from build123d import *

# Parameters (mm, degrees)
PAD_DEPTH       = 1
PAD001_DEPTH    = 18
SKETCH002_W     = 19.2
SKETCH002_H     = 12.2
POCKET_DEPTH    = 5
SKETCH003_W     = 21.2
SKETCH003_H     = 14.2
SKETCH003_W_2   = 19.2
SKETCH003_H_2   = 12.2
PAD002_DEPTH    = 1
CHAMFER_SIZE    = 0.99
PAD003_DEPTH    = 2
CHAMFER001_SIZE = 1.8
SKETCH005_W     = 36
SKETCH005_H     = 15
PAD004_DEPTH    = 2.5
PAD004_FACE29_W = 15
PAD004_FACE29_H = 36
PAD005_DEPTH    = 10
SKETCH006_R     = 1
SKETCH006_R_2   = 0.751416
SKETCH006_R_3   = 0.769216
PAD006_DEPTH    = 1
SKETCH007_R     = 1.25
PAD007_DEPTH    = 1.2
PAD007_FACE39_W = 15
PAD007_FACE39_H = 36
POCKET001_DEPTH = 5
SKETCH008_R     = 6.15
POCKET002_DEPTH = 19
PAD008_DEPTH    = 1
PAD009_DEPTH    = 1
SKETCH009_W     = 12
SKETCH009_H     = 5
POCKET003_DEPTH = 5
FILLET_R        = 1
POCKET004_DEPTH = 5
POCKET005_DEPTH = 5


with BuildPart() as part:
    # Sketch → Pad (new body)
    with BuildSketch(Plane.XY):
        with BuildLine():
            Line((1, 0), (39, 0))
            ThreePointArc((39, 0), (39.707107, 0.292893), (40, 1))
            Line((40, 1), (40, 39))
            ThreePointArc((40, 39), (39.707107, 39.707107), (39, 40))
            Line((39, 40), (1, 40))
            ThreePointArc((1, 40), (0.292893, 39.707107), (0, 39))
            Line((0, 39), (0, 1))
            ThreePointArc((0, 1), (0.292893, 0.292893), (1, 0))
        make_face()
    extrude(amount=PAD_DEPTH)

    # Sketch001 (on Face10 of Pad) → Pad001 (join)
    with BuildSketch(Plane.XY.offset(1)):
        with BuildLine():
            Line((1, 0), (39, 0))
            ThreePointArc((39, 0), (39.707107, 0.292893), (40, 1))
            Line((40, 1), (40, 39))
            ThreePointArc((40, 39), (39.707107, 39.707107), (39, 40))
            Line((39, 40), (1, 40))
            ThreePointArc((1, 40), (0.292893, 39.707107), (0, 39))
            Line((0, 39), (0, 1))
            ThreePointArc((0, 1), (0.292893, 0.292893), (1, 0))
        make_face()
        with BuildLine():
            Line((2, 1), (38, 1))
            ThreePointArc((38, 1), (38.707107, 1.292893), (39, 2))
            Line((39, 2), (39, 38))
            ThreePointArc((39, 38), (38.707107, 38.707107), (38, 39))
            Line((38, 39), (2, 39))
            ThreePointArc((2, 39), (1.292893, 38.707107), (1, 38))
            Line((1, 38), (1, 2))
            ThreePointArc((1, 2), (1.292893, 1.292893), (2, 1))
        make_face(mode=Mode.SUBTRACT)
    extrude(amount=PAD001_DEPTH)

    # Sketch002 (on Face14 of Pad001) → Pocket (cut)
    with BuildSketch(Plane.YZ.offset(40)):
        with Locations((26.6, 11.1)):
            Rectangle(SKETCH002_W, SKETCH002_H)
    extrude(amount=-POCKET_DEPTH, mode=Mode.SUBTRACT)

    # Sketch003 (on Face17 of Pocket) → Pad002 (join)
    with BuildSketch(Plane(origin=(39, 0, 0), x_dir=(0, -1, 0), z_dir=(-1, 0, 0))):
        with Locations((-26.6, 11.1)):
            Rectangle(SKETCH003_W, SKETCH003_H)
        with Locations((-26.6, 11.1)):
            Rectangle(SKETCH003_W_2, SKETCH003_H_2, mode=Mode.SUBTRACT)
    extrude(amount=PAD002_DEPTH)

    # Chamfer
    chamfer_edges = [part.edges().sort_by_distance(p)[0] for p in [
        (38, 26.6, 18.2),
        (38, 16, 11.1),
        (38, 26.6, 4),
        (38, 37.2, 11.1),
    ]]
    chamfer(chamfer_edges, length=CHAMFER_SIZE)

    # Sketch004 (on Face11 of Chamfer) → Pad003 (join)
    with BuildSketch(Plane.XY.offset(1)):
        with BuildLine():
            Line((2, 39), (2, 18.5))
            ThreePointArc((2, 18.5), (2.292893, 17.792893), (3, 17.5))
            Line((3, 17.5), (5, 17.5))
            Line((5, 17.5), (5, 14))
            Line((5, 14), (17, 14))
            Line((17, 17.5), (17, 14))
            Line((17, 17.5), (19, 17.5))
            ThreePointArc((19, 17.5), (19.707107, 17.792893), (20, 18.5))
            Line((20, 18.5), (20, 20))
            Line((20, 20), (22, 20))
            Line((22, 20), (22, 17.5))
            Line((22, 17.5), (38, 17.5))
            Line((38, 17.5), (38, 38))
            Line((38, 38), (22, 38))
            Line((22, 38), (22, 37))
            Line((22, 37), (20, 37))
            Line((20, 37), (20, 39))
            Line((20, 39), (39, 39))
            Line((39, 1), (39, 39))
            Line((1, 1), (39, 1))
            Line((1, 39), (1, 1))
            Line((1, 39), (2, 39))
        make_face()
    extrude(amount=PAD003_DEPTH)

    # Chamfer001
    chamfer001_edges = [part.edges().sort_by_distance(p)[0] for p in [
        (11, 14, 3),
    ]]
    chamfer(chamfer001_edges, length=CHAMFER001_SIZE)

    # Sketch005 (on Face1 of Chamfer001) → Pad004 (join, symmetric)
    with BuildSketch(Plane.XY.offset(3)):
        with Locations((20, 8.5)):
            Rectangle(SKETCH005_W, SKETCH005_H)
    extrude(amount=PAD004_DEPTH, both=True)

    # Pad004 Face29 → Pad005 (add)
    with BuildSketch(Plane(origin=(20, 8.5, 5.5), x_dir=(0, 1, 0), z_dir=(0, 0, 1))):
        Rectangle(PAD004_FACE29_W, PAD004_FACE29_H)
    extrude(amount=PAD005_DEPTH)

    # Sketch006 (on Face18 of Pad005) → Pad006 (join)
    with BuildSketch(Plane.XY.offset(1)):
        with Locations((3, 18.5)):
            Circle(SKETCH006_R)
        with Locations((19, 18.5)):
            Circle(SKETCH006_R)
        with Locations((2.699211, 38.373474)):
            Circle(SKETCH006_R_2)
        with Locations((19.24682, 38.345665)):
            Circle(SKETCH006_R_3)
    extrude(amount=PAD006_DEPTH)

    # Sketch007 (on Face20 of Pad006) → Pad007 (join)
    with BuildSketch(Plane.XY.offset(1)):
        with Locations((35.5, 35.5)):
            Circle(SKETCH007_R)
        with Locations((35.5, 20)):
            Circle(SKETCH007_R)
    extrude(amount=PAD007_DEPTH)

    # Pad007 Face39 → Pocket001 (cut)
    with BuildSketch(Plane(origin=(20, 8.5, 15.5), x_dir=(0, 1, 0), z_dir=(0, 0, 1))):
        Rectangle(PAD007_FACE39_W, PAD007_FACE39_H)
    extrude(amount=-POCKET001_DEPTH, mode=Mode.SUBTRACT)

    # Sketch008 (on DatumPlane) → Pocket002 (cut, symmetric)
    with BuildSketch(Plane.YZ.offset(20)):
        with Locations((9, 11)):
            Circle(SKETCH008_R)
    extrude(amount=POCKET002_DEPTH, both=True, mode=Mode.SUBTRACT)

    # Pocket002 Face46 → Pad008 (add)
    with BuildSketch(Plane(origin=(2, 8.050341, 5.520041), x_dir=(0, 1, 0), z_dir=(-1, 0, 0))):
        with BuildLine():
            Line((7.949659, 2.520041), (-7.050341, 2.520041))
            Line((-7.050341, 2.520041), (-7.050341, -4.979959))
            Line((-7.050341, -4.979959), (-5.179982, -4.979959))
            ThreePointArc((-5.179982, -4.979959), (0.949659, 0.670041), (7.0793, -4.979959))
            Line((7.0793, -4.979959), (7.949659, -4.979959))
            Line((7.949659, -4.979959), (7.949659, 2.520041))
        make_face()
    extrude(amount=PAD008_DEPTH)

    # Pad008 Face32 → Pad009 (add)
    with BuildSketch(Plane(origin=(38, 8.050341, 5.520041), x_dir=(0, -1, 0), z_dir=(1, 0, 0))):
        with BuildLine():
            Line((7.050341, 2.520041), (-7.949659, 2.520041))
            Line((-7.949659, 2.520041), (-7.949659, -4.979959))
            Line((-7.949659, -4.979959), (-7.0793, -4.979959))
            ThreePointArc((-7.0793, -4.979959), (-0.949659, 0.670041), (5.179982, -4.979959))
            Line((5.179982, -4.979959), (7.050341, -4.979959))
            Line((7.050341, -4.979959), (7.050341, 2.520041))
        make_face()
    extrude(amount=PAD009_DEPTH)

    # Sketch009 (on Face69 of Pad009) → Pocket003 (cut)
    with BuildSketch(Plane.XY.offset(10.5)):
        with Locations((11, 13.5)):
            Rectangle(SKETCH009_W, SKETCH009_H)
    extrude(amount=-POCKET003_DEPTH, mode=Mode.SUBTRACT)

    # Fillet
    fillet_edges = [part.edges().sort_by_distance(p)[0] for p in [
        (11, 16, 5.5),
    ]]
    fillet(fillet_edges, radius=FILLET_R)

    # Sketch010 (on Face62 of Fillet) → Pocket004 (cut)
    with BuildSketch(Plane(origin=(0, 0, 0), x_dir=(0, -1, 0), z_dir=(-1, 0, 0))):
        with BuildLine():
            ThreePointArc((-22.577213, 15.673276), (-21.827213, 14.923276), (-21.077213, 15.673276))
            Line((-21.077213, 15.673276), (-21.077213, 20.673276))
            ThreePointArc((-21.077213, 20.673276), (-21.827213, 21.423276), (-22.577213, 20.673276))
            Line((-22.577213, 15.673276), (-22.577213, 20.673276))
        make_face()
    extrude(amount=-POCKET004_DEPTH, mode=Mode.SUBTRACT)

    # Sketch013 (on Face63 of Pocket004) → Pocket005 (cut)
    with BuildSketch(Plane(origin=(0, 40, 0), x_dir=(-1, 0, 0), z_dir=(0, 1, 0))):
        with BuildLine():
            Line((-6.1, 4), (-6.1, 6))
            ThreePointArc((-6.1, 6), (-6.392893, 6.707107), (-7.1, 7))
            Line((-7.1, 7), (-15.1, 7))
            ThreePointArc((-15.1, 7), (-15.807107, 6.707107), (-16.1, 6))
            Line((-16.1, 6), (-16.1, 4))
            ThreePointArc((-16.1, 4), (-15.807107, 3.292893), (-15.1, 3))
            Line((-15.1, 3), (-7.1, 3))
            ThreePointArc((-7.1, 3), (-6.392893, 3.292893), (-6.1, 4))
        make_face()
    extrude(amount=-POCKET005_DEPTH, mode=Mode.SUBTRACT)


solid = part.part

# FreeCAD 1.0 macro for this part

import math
import FreeCAD as App
import Part
import Sketcher
Q = App.Units.Quantity


def edges_at(feature, points):
    """Names of the edges that pass closest to the given points."""
    edges = feature.Shape.Edges
    near = lambda p: min(range(len(edges)), key=lambda i: edges[i].distToShape(Part.Vertex(*p))[0])
    return sorted({f"Edge{near(p) + 1}" for p in points})


def add_polygon(sketch, points):
    """Adds a closed chain of lines whose ends are joined by coincident constraints."""
    first, n = sketch.GeometryCount, len(points)
    for a, b in zip(points, points[1:] + points[:1]):
        sketch.addGeometry(Part.LineSegment(App.Vector(*a, 0), App.Vector(*b, 0)), False)
    for i in range(n):
        sketch.addConstraint(Sketcher.Constraint("Coincident", first + i, 2, first + (i + 1) % n, 1))

doc = App.newDocument("Part")
params = doc.addObject("Spreadsheet::Sheet", "Params")
for row, (alias, value) in enumerate([
    ("sketch1_radius", "0.999999 mm"),
    ("sketch1_width", "38 mm"),
    ("pad1_length", "1 mm"),
    ("sketch2_radius", "0.999999 mm"),
    ("sketch2_width", "38 mm"),
    ("pad2_length", "18 mm"),
    ("sketch3_width", "19.2 mm"),
    ("sketch3_height", "12.2 mm"),
    ("pocket1_length", "5 mm"),
    ("sketch4_width", "21.2 mm"),
    ("sketch4_width2", "19.2 mm"),
    ("sketch4_height", "14.2 mm"),
    ("sketch4_height2", "12.2 mm"),
    ("pad3_length", "1 mm"),
    ("chamfer_size", "0.99 mm"),
    ("sketch5_radius", "0.999999 mm"),
    ("sketch5_width", "1 mm"),
    ("sketch5_width2", "38 mm"),
    ("sketch5_width3", "19 mm"),
    ("sketch5_width4", "16 mm"),
    ("pad4_length", "2 mm"),
    ("chamfer2_size", "1.8 mm"),
    ("sketch6_width", "36 mm"),
    ("sketch6_height", "15 mm"),
    ("pad5_length", "5 mm"),
    ("sketch7_width", "36 mm"),
    ("sketch7_height", "15 mm"),
    ("pad6_length", "10 mm"),
    ("sketch8_diameter", "2 mm"),
    ("pad7_length", "1 mm"),
    ("sketch9_diameter", "2.5 mm"),
    ("pad8_length", "1.2 mm"),
    ("sketch10_width", "36 mm"),
    ("sketch10_height", "15 mm"),
    ("pocket2_length", "5 mm"),
    ("sketch11_diameter", "12.3 mm"),
    ("pocket3_length", "38 mm"),
    ("sketch12_width", "15 mm"),
    ("sketch12_radius", "6.15 mm"),
    ("sketch12_height", "7.5 mm"),
    ("pad9_length", "1 mm"),
    ("sketch13_width", "15 mm"),
    ("sketch13_radius", "6.15 mm"),
    ("sketch13_height", "7.5 mm"),
    ("pad10_length", "1 mm"),
    ("sketch14_width", "12 mm"),
    ("sketch14_height", "5 mm"),
    ("pocket4_length", "5 mm"),
    ("fillet_radius", "1 mm"),
    ("sketch15_height", "5 mm"),
    ("sketch15_radius", "0.75 mm"),
    ("pocket5_length", "5 mm"),
    ("sketch16_radius", "0.999999 mm"),
    ("sketch16_width", "8 mm"),
    ("sketch16_height", "2 mm"),
    ("pocket6_length", "5 mm"),
], start=1):
    params.set(f"A{row}", alias)
    params.set(f"B{row}", "=" + value)
    params.setAlias(f"B{row}", alias)

body = doc.addObject("PartDesign::Body", "Body")

# Sketch on XY plane
sketch1 = body.newObject("Sketcher::SketchObject", "Sketch")
sketch1.AttachmentSupport = (doc.getObject("XY_Plane"), [""])
sketch1.MapMode = "FlatFace"
sketch1.addGeometry(Part.LineSegment(App.Vector(1, 0, 0), App.Vector(39, 0, 0)), False)
sketch1.addGeometry(Part.ArcOfCircle(Part.Circle(App.Vector(39, 1, 0), App.Vector(0, 0, 1), 1), math.radians(-90), math.radians(0)), False)
sketch1.addGeometry(Part.LineSegment(App.Vector(40, 1, 0), App.Vector(40, 39, 0)), False)
sketch1.addGeometry(Part.ArcOfCircle(Part.Circle(App.Vector(39, 39, 0), App.Vector(0, 0, 1), 1), math.radians(0), math.radians(90)), False)
sketch1.addGeometry(Part.LineSegment(App.Vector(39, 40, 0), App.Vector(1, 40, 0)), False)
sketch1.addGeometry(Part.ArcOfCircle(Part.Circle(App.Vector(1, 39, 0), App.Vector(0, 0, 1), 1), math.radians(90), math.radians(180)), False)
sketch1.addGeometry(Part.LineSegment(App.Vector(0, 39, 0), App.Vector(0, 1, 0)), False)
sketch1.addGeometry(Part.ArcOfCircle(Part.Circle(App.Vector(1, 1, 0), App.Vector(0, 0, 1), 1), math.radians(180), math.radians(270)), False)
sketch1.addConstraint(Sketcher.Constraint("Tangent", 0, 2, 1, 1))
sketch1.addConstraint(Sketcher.Constraint("Tangent", 1, 2, 2, 1))
sketch1.addConstraint(Sketcher.Constraint("Tangent", 2, 2, 3, 1))
sketch1.addConstraint(Sketcher.Constraint("Tangent", 3, 2, 4, 1))
sketch1.addConstraint(Sketcher.Constraint("Tangent", 4, 2, 5, 1))
sketch1.addConstraint(Sketcher.Constraint("Tangent", 5, 2, 6, 1))
sketch1.addConstraint(Sketcher.Constraint("Tangent", 6, 2, 7, 1))
sketch1.addConstraint(Sketcher.Constraint("Tangent", 7, 2, 0, 1))
sketch1.addConstraint(Sketcher.Constraint("Horizontal", 0))
sketch1.addConstraint(Sketcher.Constraint("Vertical", 2))
sketch1.addConstraint(Sketcher.Constraint("Horizontal", 4))
sketch1.addConstraint(Sketcher.Constraint("Vertical", 6))
sketch1.addConstraint(Sketcher.Constraint("Equal", 1, 3))
sketch1.addConstraint(Sketcher.Constraint("Equal", 3, 5))
sketch1.addConstraint(Sketcher.Constraint("Equal", 5, 7))
sketch1.addConstraint(Sketcher.Constraint("PointOnObject", 0, 2, -1))
sketch1.addConstraint(Sketcher.Constraint("PointOnObject", 5, 2, -2))
sketch1.addConstraint(Sketcher.Constraint("Equal", 4, 2))
sketch1.addConstraint(Sketcher.Constraint("Radius", 1, Q("0.999999 mm")))
sketch1.addConstraint(Sketcher.Constraint("DistanceX", 0, 1, 0, 2, Q("38 mm")))
sketch1.setExpression("Constraints[18]", "Params.sketch1_radius")
sketch1.setExpression("Constraints[19]", "Params.sketch1_width")
pad1 = body.newObject("PartDesign::Pad", "Pad")
pad1.Profile = sketch1
pad1.setExpression("Length", "Params.pad1_length")

# Sketch on XY plane
sketch2 = body.newObject("Sketcher::SketchObject", "Sketch001")
sketch2.AttachmentSupport = (doc.getObject("XY_Plane"), [""])
sketch2.MapMode = "FlatFace"
sketch2.AttachmentOffset = App.Placement(App.Vector(0, 0, 1), App.Rotation())
sketch2.addGeometry(Part.LineSegment(App.Vector(1, 0, 0), App.Vector(39, 0, 0)), False)
sketch2.addGeometry(Part.ArcOfCircle(Part.Circle(App.Vector(39, 1, 0), App.Vector(0, 0, 1), 1), math.radians(-90), math.radians(0)), False)
sketch2.addGeometry(Part.LineSegment(App.Vector(40, 1, 0), App.Vector(40, 39, 0)), False)
sketch2.addGeometry(Part.ArcOfCircle(Part.Circle(App.Vector(39, 39, 0), App.Vector(0, 0, 1), 1), math.radians(0), math.radians(90)), False)
sketch2.addGeometry(Part.LineSegment(App.Vector(39, 40, 0), App.Vector(1, 40, 0)), False)
sketch2.addGeometry(Part.ArcOfCircle(Part.Circle(App.Vector(1, 39, 0), App.Vector(0, 0, 1), 1), math.radians(90), math.radians(180)), False)
sketch2.addGeometry(Part.LineSegment(App.Vector(0, 39, 0), App.Vector(0, 1, 0)), False)
sketch2.addGeometry(Part.ArcOfCircle(Part.Circle(App.Vector(1, 1, 0), App.Vector(0, 0, 1), 1), math.radians(180), math.radians(270)), False)
sketch2.addGeometry(Part.LineSegment(App.Vector(38, 1, 0), App.Vector(2, 1, 0)), False)
sketch2.addGeometry(Part.ArcOfCircle(Part.Circle(App.Vector(2, 2, 0), App.Vector(0, 0, 1), 1), math.radians(180), math.radians(270)), False)
sketch2.addGeometry(Part.LineSegment(App.Vector(1, 2, 0), App.Vector(1, 38, 0)), False)
sketch2.addGeometry(Part.ArcOfCircle(Part.Circle(App.Vector(2, 38, 0), App.Vector(0, 0, 1), 1), math.radians(90), math.radians(180)), False)
sketch2.addGeometry(Part.LineSegment(App.Vector(2, 39, 0), App.Vector(38, 39, 0)), False)
sketch2.addGeometry(Part.ArcOfCircle(Part.Circle(App.Vector(38, 38, 0), App.Vector(0, 0, 1), 1), math.radians(0), math.radians(90)), False)
sketch2.addGeometry(Part.LineSegment(App.Vector(39, 38, 0), App.Vector(39, 2, 0)), False)
sketch2.addGeometry(Part.ArcOfCircle(Part.Circle(App.Vector(38, 2, 0), App.Vector(0, 0, 1), 1), math.radians(-90), math.radians(0)), False)
sketch2.addConstraint(Sketcher.Constraint("Tangent", 0, 2, 1, 1))
sketch2.addConstraint(Sketcher.Constraint("Tangent", 1, 2, 2, 1))
sketch2.addConstraint(Sketcher.Constraint("Tangent", 2, 2, 3, 1))
sketch2.addConstraint(Sketcher.Constraint("Tangent", 3, 2, 4, 1))
sketch2.addConstraint(Sketcher.Constraint("Tangent", 4, 2, 5, 1))
sketch2.addConstraint(Sketcher.Constraint("Tangent", 5, 2, 6, 1))
sketch2.addConstraint(Sketcher.Constraint("Tangent", 6, 2, 7, 1))
sketch2.addConstraint(Sketcher.Constraint("Tangent", 7, 2, 0, 1))
sketch2.addConstraint(Sketcher.Constraint("Tangent", 8, 2, 9, 2))
sketch2.addConstraint(Sketcher.Constraint("Tangent", 9, 1, 10, 1))
sketch2.addConstraint(Sketcher.Constraint("Tangent", 10, 2, 11, 2))
sketch2.addConstraint(Sketcher.Constraint("Tangent", 11, 1, 12, 1))
sketch2.addConstraint(Sketcher.Constraint("Tangent", 12, 2, 13, 2))
sketch2.addConstraint(Sketcher.Constraint("Tangent", 13, 1, 14, 1))
sketch2.addConstraint(Sketcher.Constraint("Tangent", 14, 2, 15, 2))
sketch2.addConstraint(Sketcher.Constraint("Tangent", 15, 1, 8, 1))
sketch2.addConstraint(Sketcher.Constraint("Horizontal", 0))
sketch2.addConstraint(Sketcher.Constraint("Vertical", 2))
sketch2.addConstraint(Sketcher.Constraint("Horizontal", 4))
sketch2.addConstraint(Sketcher.Constraint("Vertical", 6))
sketch2.addConstraint(Sketcher.Constraint("Horizontal", 8))
sketch2.addConstraint(Sketcher.Constraint("Vertical", 10))
sketch2.addConstraint(Sketcher.Constraint("Horizontal", 12))
sketch2.addConstraint(Sketcher.Constraint("Vertical", 14))
sketch2.addConstraint(Sketcher.Constraint("Equal", 1, 3))
sketch2.addConstraint(Sketcher.Constraint("Equal", 3, 5))
sketch2.addConstraint(Sketcher.Constraint("Equal", 5, 7))
sketch2.addConstraint(Sketcher.Constraint("Equal", 7, 9))
sketch2.addConstraint(Sketcher.Constraint("Equal", 9, 11))
sketch2.addConstraint(Sketcher.Constraint("Equal", 11, 13))
sketch2.addConstraint(Sketcher.Constraint("Equal", 13, 15))
sketch2.addConstraint(Sketcher.Constraint("PointOnObject", 0, 2, -1))
sketch2.addConstraint(Sketcher.Constraint("PointOnObject", 5, 2, -2))
sketch2.addConstraint(Sketcher.Constraint("Horizontal", 6, 2, 8, 2))
sketch2.addConstraint(Sketcher.Constraint("Horizontal", 5, 2, 11, 1))
sketch2.addConstraint(Sketcher.Constraint("Vertical", 7, 2, 9, 1))
sketch2.addConstraint(Sketcher.Constraint("Vertical", 3, 2, 13, 1))
sketch2.addConstraint(Sketcher.Constraint("Equal", 4, 2))
sketch2.addConstraint(Sketcher.Constraint("Radius", 1, Q("0.999999 mm")))
sketch2.addConstraint(Sketcher.Constraint("DistanceX", 0, 1, 0, 2, Q("38 mm")))
sketch2.setExpression("Constraints[38]", "Params.sketch2_radius")
sketch2.setExpression("Constraints[39]", "Params.sketch2_width")
pad2 = body.newObject("PartDesign::Pad", "Pad001")
pad2.Profile = sketch2
pad2.setExpression("Length", "Params.pad2_length")

# Sketch on YZ plane
sketch3 = body.newObject("Sketcher::SketchObject", "Sketch002")
sketch3.AttachmentSupport = (doc.getObject("YZ_Plane"), [""])
sketch3.MapMode = "FlatFace"
sketch3.AttachmentOffset = App.Placement(App.Vector(0, 0, 40), App.Rotation())
add_polygon(sketch3, [(17, 17), (17, 5), (36, 5), (36, 17)])  # lines 0-3
sketch3.addConstraint(Sketcher.Constraint("Vertical", 0))
sketch3.addConstraint(Sketcher.Constraint("Horizontal", 1))
sketch3.addConstraint(Sketcher.Constraint("Vertical", 2))
sketch3.addConstraint(Sketcher.Constraint("Horizontal", 3))
sketch3.addConstraint(Sketcher.Constraint("DistanceX", 1, 1, 1, 2, Q("19.2 mm")))
sketch3.addConstraint(Sketcher.Constraint("DistanceY", 0, 2, 0, 1, Q("12.2 mm")))
sketch3.addConstraint(Sketcher.Constraint("DistanceX", -1, 1, 0, 2, Q("17 mm")))
sketch3.addConstraint(Sketcher.Constraint("DistanceY", -1, 1, 0, 2, Q("5 mm")))
sketch3.setExpression("Constraints[8]", "Params.sketch3_width")
sketch3.setExpression("Constraints[9]", "Params.sketch3_height")
pocket1 = body.newObject("PartDesign::Pocket", "Pocket")
pocket1.Profile = sketch3
pocket1.setExpression("Length", "Params.pocket1_length")

# Sketch on YZ plane
sketch4 = body.newObject("Sketcher::SketchObject", "Sketch003")
sketch4.AttachmentSupport = (doc.getObject("YZ_Plane"), [""])
sketch4.MapMode = "FlatFace"
sketch4.AttachmentOffset = App.Placement(App.Vector(0, 0, 39), App.Rotation())
add_polygon(sketch4, [(37, 18), (37, 4), (16, 4), (16, 18)])  # lines 0-3
add_polygon(sketch4, [(17, 5), (36, 5), (36, 17), (17, 17)])  # lines 4-7
sketch4.addConstraint(Sketcher.Constraint("Vertical", 0))
sketch4.addConstraint(Sketcher.Constraint("Horizontal", 1))
sketch4.addConstraint(Sketcher.Constraint("Vertical", 2))
sketch4.addConstraint(Sketcher.Constraint("Horizontal", 3))
sketch4.addConstraint(Sketcher.Constraint("Horizontal", 4))
sketch4.addConstraint(Sketcher.Constraint("Vertical", 5))
sketch4.addConstraint(Sketcher.Constraint("Horizontal", 6))
sketch4.addConstraint(Sketcher.Constraint("Vertical", 7))
sketch4.addConstraint(Sketcher.Constraint("DistanceX", 1, 2, 1, 1, Q("21.2 mm")))
sketch4.addConstraint(Sketcher.Constraint("DistanceX", 4, 1, 4, 2, Q("19.2 mm")))
sketch4.addConstraint(Sketcher.Constraint("DistanceY", 0, 2, 0, 1, Q("14.2 mm")))
sketch4.addConstraint(Sketcher.Constraint("DistanceY", 5, 1, 5, 2, Q("12.2 mm")))
sketch4.addConstraint(Sketcher.Constraint("DistanceY", -1, 1, 0, 2, Q("4 mm")))
sketch4.addConstraint(Sketcher.Constraint("DistanceX", -1, 1, 1, 2, Q("16 mm")))
sketch4.addConstraint(Sketcher.Constraint("DistanceY", -1, 1, 4, 2, Q("5 mm")))
sketch4.addConstraint(Sketcher.Constraint("DistanceX", -1, 1, 6, 2, Q("17 mm")))
sketch4.setExpression("Constraints[16]", "Params.sketch4_width")
sketch4.setExpression("Constraints[17]", "Params.sketch4_width2")
sketch4.setExpression("Constraints[18]", "Params.sketch4_height")
sketch4.setExpression("Constraints[19]", "Params.sketch4_height2")
pad3 = body.newObject("PartDesign::Pad", "Pad002")
pad3.Profile = sketch4
pad3.setExpression("Length", "Params.pad3_length")
pad3.Reversed = True
doc.recompute()

chamfer = body.newObject("PartDesign::Chamfer", "Chamfer")
chamfer.Base = (pad3, edges_at(pad3, [
    (38, 26.6, 18.2),
    (38, 16, 11.1),
    (38, 26.6, 4),
    (38, 37.2, 11.1),
]))
chamfer.setExpression("Size", "Params.chamfer_size")

# Sketch on XY plane
sketch5 = body.newObject("Sketcher::SketchObject", "Sketch004")
sketch5.AttachmentSupport = (doc.getObject("XY_Plane"), [""])
sketch5.MapMode = "FlatFace"
sketch5.AttachmentOffset = App.Placement(App.Vector(0, 0, 1), App.Rotation())
sketch5.addGeometry(Part.LineSegment(App.Vector(2, 18.5, 0), App.Vector(2, 39, 0)), False)
sketch5.addGeometry(Part.LineSegment(App.Vector(2, 39, 0), App.Vector(1, 39, 0)), False)
sketch5.addGeometry(Part.LineSegment(App.Vector(1, 39, 0), App.Vector(1, 1, 0)), False)
sketch5.addGeometry(Part.LineSegment(App.Vector(1, 1, 0), App.Vector(39, 1, 0)), False)
sketch5.addGeometry(Part.LineSegment(App.Vector(39, 1, 0), App.Vector(39, 39, 0)), False)
sketch5.addGeometry(Part.LineSegment(App.Vector(39, 39, 0), App.Vector(20, 39, 0)), False)
sketch5.addGeometry(Part.LineSegment(App.Vector(20, 39, 0), App.Vector(20, 37, 0)), False)
sketch5.addGeometry(Part.LineSegment(App.Vector(20, 37, 0), App.Vector(22, 37, 0)), False)
sketch5.addGeometry(Part.LineSegment(App.Vector(22, 37, 0), App.Vector(22, 38, 0)), False)
sketch5.addGeometry(Part.LineSegment(App.Vector(22, 38, 0), App.Vector(38, 38, 0)), False)
sketch5.addGeometry(Part.LineSegment(App.Vector(38, 38, 0), App.Vector(38, 17.5, 0)), False)
sketch5.addGeometry(Part.LineSegment(App.Vector(38, 17.5, 0), App.Vector(22, 17.5, 0)), False)
sketch5.addGeometry(Part.LineSegment(App.Vector(22, 17.5, 0), App.Vector(22, 20, 0)), False)
sketch5.addGeometry(Part.LineSegment(App.Vector(22, 20, 0), App.Vector(20, 20, 0)), False)
sketch5.addGeometry(Part.LineSegment(App.Vector(20, 20, 0), App.Vector(20, 18.5, 0)), False)
sketch5.addGeometry(Part.ArcOfCircle(Part.Circle(App.Vector(19, 18.5, 0), App.Vector(0, 0, 1), 1), math.radians(-90), math.radians(0)), False)
sketch5.addGeometry(Part.LineSegment(App.Vector(19, 17.5, 0), App.Vector(17, 17.5, 0)), False)
sketch5.addGeometry(Part.LineSegment(App.Vector(17, 17.5, 0), App.Vector(17, 14, 0)), False)
sketch5.addGeometry(Part.LineSegment(App.Vector(17, 14, 0), App.Vector(5, 14, 0)), False)
sketch5.addGeometry(Part.LineSegment(App.Vector(5, 14, 0), App.Vector(5, 17.5, 0)), False)
sketch5.addGeometry(Part.LineSegment(App.Vector(5, 17.5, 0), App.Vector(3, 17.5, 0)), False)
sketch5.addGeometry(Part.ArcOfCircle(Part.Circle(App.Vector(3, 18.5, 0), App.Vector(0, 0, 1), 1), math.radians(180), math.radians(270)), False)
sketch5.addConstraint(Sketcher.Constraint("Coincident", 0, 2, 1, 1))
sketch5.addConstraint(Sketcher.Constraint("Coincident", 1, 2, 2, 1))
sketch5.addConstraint(Sketcher.Constraint("Coincident", 2, 2, 3, 1))
sketch5.addConstraint(Sketcher.Constraint("Coincident", 3, 2, 4, 1))
sketch5.addConstraint(Sketcher.Constraint("Coincident", 4, 2, 5, 1))
sketch5.addConstraint(Sketcher.Constraint("Coincident", 5, 2, 6, 1))
sketch5.addConstraint(Sketcher.Constraint("Coincident", 6, 2, 7, 1))
sketch5.addConstraint(Sketcher.Constraint("Coincident", 7, 2, 8, 1))
sketch5.addConstraint(Sketcher.Constraint("Coincident", 8, 2, 9, 1))
sketch5.addConstraint(Sketcher.Constraint("Coincident", 9, 2, 10, 1))
sketch5.addConstraint(Sketcher.Constraint("Coincident", 10, 2, 11, 1))
sketch5.addConstraint(Sketcher.Constraint("Coincident", 11, 2, 12, 1))
sketch5.addConstraint(Sketcher.Constraint("Coincident", 12, 2, 13, 1))
sketch5.addConstraint(Sketcher.Constraint("Coincident", 13, 2, 14, 1))
sketch5.addConstraint(Sketcher.Constraint("Tangent", 14, 2, 15, 2))
sketch5.addConstraint(Sketcher.Constraint("Tangent", 15, 1, 16, 1))
sketch5.addConstraint(Sketcher.Constraint("Coincident", 16, 2, 17, 1))
sketch5.addConstraint(Sketcher.Constraint("Coincident", 17, 2, 18, 1))
sketch5.addConstraint(Sketcher.Constraint("Coincident", 18, 2, 19, 1))
sketch5.addConstraint(Sketcher.Constraint("Coincident", 19, 2, 20, 1))
sketch5.addConstraint(Sketcher.Constraint("Tangent", 20, 2, 21, 2))
sketch5.addConstraint(Sketcher.Constraint("Tangent", 21, 1, 0, 1))
sketch5.addConstraint(Sketcher.Constraint("Vertical", 0))
sketch5.addConstraint(Sketcher.Constraint("Horizontal", 1))
sketch5.addConstraint(Sketcher.Constraint("Vertical", 2))
sketch5.addConstraint(Sketcher.Constraint("Horizontal", 3))
sketch5.addConstraint(Sketcher.Constraint("Vertical", 4))
sketch5.addConstraint(Sketcher.Constraint("Horizontal", 5))
sketch5.addConstraint(Sketcher.Constraint("Vertical", 6))
sketch5.addConstraint(Sketcher.Constraint("Horizontal", 7))
sketch5.addConstraint(Sketcher.Constraint("Vertical", 8))
sketch5.addConstraint(Sketcher.Constraint("Horizontal", 9))
sketch5.addConstraint(Sketcher.Constraint("Vertical", 10))
sketch5.addConstraint(Sketcher.Constraint("Horizontal", 11))
sketch5.addConstraint(Sketcher.Constraint("Vertical", 12))
sketch5.addConstraint(Sketcher.Constraint("Horizontal", 13))
sketch5.addConstraint(Sketcher.Constraint("Vertical", 14))
sketch5.addConstraint(Sketcher.Constraint("Horizontal", 16))
sketch5.addConstraint(Sketcher.Constraint("Vertical", 17))
sketch5.addConstraint(Sketcher.Constraint("Horizontal", 18))
sketch5.addConstraint(Sketcher.Constraint("Vertical", 19))
sketch5.addConstraint(Sketcher.Constraint("Horizontal", 20))
sketch5.addConstraint(Sketcher.Constraint("Equal", 15, 21))
sketch5.addConstraint(Sketcher.Constraint("Horizontal", 15, 3, 21, 3))
sketch5.addConstraint(Sketcher.Constraint("Horizontal", 1, 2, 4, 2))
sketch5.addConstraint(Sketcher.Constraint("Horizontal", 11, 2, 15, 1))
sketch5.addConstraint(Sketcher.Constraint("Vertical", 8, 2, 11, 2))
sketch5.addConstraint(Sketcher.Constraint("Vertical", 6, 2, 13, 2))
sketch5.addConstraint(Sketcher.Constraint("Equal", 13, 16))
sketch5.addConstraint(Sketcher.Constraint("Equal", 16, 20))
sketch5.addConstraint(Sketcher.Constraint("Equal", 3, 2))
sketch5.addConstraint(Sketcher.Constraint("Equal", 20, 6))
sketch5.addConstraint(Sketcher.Constraint("Equal", 1, 8))
sketch5.addConstraint(Sketcher.Constraint("Equal", 0, 10))
sketch5.addConstraint(Sketcher.Constraint("Radius", 15, Q("0.999999 mm")))
sketch5.addConstraint(Sketcher.Constraint("DistanceX", 1, 2, 1, 1, Q("1 mm")))
sketch5.addConstraint(Sketcher.Constraint("DistanceX", 3, 1, 3, 2, Q("38 mm")))
sketch5.addConstraint(Sketcher.Constraint("DistanceX", 5, 2, 5, 1, Q("19 mm")))
sketch5.addConstraint(Sketcher.Constraint("DistanceX", 9, 1, 9, 2, Q("16 mm")))
sketch5.addConstraint(Sketcher.Constraint("DistanceY", 0, 1, 0, 2, Q("20.5 mm")))
sketch5.addConstraint(Sketcher.Constraint("DistanceY", 12, 1, 12, 2, Q("2.5 mm")))
sketch5.addConstraint(Sketcher.Constraint("DistanceY", 17, 2, 17, 1, Q("3.5 mm")))
sketch5.addConstraint(Sketcher.Constraint("DistanceX", -1, 1, 15, 3, Q("19.000001 mm")))
sketch5.addConstraint(Sketcher.Constraint("DistanceY", -1, 1, 0, 2, Q("39 mm")))
sketch5.setExpression("Constraints[54]", "Params.sketch5_radius")
sketch5.setExpression("Constraints[55]", "Params.sketch5_width")
sketch5.setExpression("Constraints[56]", "Params.sketch5_width2")
sketch5.setExpression("Constraints[57]", "Params.sketch5_width3")
sketch5.setExpression("Constraints[58]", "Params.sketch5_width4")
pad4 = body.newObject("PartDesign::Pad", "Pad003")
pad4.Profile = sketch5
pad4.setExpression("Length", "Params.pad4_length")
doc.recompute()

chamfer2 = body.newObject("PartDesign::Chamfer", "Chamfer001")
chamfer2.Base = (pad4, edges_at(pad4, [(11, 14, 3)]))
chamfer2.setExpression("Size", "Params.chamfer2_size")

# Sketch on XY plane
sketch6 = body.newObject("Sketcher::SketchObject", "Sketch005")
sketch6.AttachmentSupport = (doc.getObject("XY_Plane"), [""])
sketch6.MapMode = "FlatFace"
sketch6.AttachmentOffset = App.Placement(App.Vector(0, 0, 3), App.Rotation())
add_polygon(sketch6, [(2, 16), (2, 1), (38, 1), (38, 16)])  # lines 0-3
sketch6.addConstraint(Sketcher.Constraint("Vertical", 0))
sketch6.addConstraint(Sketcher.Constraint("Horizontal", 1))
sketch6.addConstraint(Sketcher.Constraint("Vertical", 2))
sketch6.addConstraint(Sketcher.Constraint("Horizontal", 3))
sketch6.addConstraint(Sketcher.Constraint("DistanceX", 1, 1, 1, 2, Q("36 mm")))
sketch6.addConstraint(Sketcher.Constraint("DistanceY", 0, 2, 0, 1, Q("15 mm")))
sketch6.addConstraint(Sketcher.Constraint("DistanceX", -1, 1, 0, 2, Q("2 mm")))
sketch6.addConstraint(Sketcher.Constraint("DistanceY", -1, 1, 0, 2, Q("1 mm")))
sketch6.setExpression("Constraints[8]", "Params.sketch6_width")
sketch6.setExpression("Constraints[9]", "Params.sketch6_height")
pad5 = body.newObject("PartDesign::Pad", "Pad004")
pad5.Profile = sketch6
pad5.setExpression("Length", "Params.pad5_length")
pad5.Midplane = True

# Sketch on XY plane
sketch7 = body.newObject("Sketcher::SketchObject", "Sketch006")
sketch7.AttachmentSupport = (doc.getObject("XY_Plane"), [""])
sketch7.MapMode = "FlatFace"
sketch7.AttachmentOffset = App.Placement(App.Vector(0, 0, 5.5), App.Rotation())
add_polygon(sketch7, [(2, 1), (38, 1), (38, 16), (2, 16)])  # lines 0-3
sketch7.addConstraint(Sketcher.Constraint("Horizontal", 0))
sketch7.addConstraint(Sketcher.Constraint("Vertical", 1))
sketch7.addConstraint(Sketcher.Constraint("Horizontal", 2))
sketch7.addConstraint(Sketcher.Constraint("Vertical", 3))
sketch7.addConstraint(Sketcher.Constraint("DistanceX", 0, 1, 0, 2, Q("36 mm")))
sketch7.addConstraint(Sketcher.Constraint("DistanceY", 1, 1, 1, 2, Q("15 mm")))
sketch7.addConstraint(Sketcher.Constraint("DistanceX", -1, 1, 0, 2, Q("38 mm")))
sketch7.addConstraint(Sketcher.Constraint("DistanceY", -1, 1, 0, 2, Q("1 mm")))
sketch7.setExpression("Constraints[8]", "Params.sketch7_width")
sketch7.setExpression("Constraints[9]", "Params.sketch7_height")
pad6 = body.newObject("PartDesign::Pad", "Pad005")
pad6.Profile = sketch7
pad6.setExpression("Length", "Params.pad6_length")

# Sketch on XY plane
sketch8 = body.newObject("Sketcher::SketchObject", "Sketch007")
sketch8.AttachmentSupport = (doc.getObject("XY_Plane"), [""])
sketch8.MapMode = "FlatFace"
sketch8.AttachmentOffset = App.Placement(App.Vector(0, 0, 1), App.Rotation())
sketch8.addGeometry(Part.Circle(App.Vector(3, 18.5, 0), App.Vector(0, 0, 1), 1), False)
sketch8.addGeometry(Part.Circle(App.Vector(19, 18.5, 0), App.Vector(0, 0, 1), 1), False)
sketch8.addGeometry(Part.Circle(App.Vector(2.7, 38.4, 0), App.Vector(0, 0, 1), 0.8), False)
sketch8.addGeometry(Part.Circle(App.Vector(19.2, 38.3, 0), App.Vector(0, 0, 1), 0.8), False)
sketch8.addConstraint(Sketcher.Constraint("Equal", 0, 1))
sketch8.addConstraint(Sketcher.Constraint("Horizontal", 0, 3, 1, 3))
sketch8.addConstraint(Sketcher.Constraint("Diameter", 0, Q("2 mm")))
sketch8.addConstraint(Sketcher.Constraint("DistanceX", -1, 1, 0, 3, Q("3 mm")))
sketch8.addConstraint(Sketcher.Constraint("DistanceX", -1, 1, 1, 3, Q("19 mm")))
sketch8.addConstraint(Sketcher.Constraint("DistanceY", -1, 1, 0, 3, Q("18.5 mm")))
sketch8.addConstraint(Sketcher.Constraint("Diameter", 2, Q("1.502832 mm")))
sketch8.addConstraint(Sketcher.Constraint("Diameter", 3, Q("1.538432 mm")))
sketch8.addConstraint(Sketcher.Constraint("DistanceX", -1, 1, 2, 3, Q("2.699211 mm")))
sketch8.addConstraint(Sketcher.Constraint("DistanceX", -1, 1, 3, 3, Q("19.24682 mm")))
sketch8.addConstraint(Sketcher.Constraint("DistanceY", 3, 3, 2, 3, Q("0.027809 mm")))
sketch8.addConstraint(Sketcher.Constraint("DistanceY", -1, 1, 2, 3, Q("38.373474 mm")))
sketch8.setExpression("Constraints[2]", "Params.sketch8_diameter")
pad7 = body.newObject("PartDesign::Pad", "Pad006")
pad7.Profile = sketch8
pad7.setExpression("Length", "Params.pad7_length")

# Sketch on XY plane
sketch9 = body.newObject("Sketcher::SketchObject", "Sketch008")
sketch9.AttachmentSupport = (doc.getObject("XY_Plane"), [""])
sketch9.MapMode = "FlatFace"
sketch9.AttachmentOffset = App.Placement(App.Vector(0, 0, 1), App.Rotation())
sketch9.addGeometry(Part.Circle(App.Vector(35.5, 35.5, 0), App.Vector(0, 0, 1), 1.2), False)
sketch9.addGeometry(Part.Circle(App.Vector(35.5, 20, 0), App.Vector(0, 0, 1), 1.2), False)
sketch9.addConstraint(Sketcher.Constraint("Equal", 0, 1))
sketch9.addConstraint(Sketcher.Constraint("Vertical", 0, 3, 1, 3))
sketch9.addConstraint(Sketcher.Constraint("Diameter", 0, Q("2.5 mm")))
sketch9.addConstraint(Sketcher.Constraint("DistanceY", -1, 1, 1, 3, Q("20 mm")))
sketch9.addConstraint(Sketcher.Constraint("DistanceX", -1, 1, 0, 3, Q("35.5 mm")))
sketch9.addConstraint(Sketcher.Constraint("DistanceY", -1, 1, 0, 3, Q("35.5 mm")))
sketch9.setExpression("Constraints[2]", "Params.sketch9_diameter")
pad8 = body.newObject("PartDesign::Pad", "Pad007")
pad8.Profile = sketch9
pad8.setExpression("Length", "Params.pad8_length")

# Sketch on XY plane
sketch10 = body.newObject("Sketcher::SketchObject", "Sketch009")
sketch10.AttachmentSupport = (doc.getObject("XY_Plane"), [""])
sketch10.MapMode = "FlatFace"
sketch10.AttachmentOffset = App.Placement(App.Vector(0, 0, 15.5), App.Rotation())
add_polygon(sketch10, [(2, 1), (38, 1), (38, 16), (2, 16)])  # lines 0-3
sketch10.addConstraint(Sketcher.Constraint("Horizontal", 0))
sketch10.addConstraint(Sketcher.Constraint("Vertical", 1))
sketch10.addConstraint(Sketcher.Constraint("Horizontal", 2))
sketch10.addConstraint(Sketcher.Constraint("Vertical", 3))
sketch10.addConstraint(Sketcher.Constraint("DistanceX", 0, 1, 0, 2, Q("36 mm")))
sketch10.addConstraint(Sketcher.Constraint("DistanceY", 1, 1, 1, 2, Q("15 mm")))
sketch10.addConstraint(Sketcher.Constraint("DistanceX", -1, 1, 0, 2, Q("38 mm")))
sketch10.addConstraint(Sketcher.Constraint("DistanceY", -1, 1, 0, 2, Q("1 mm")))
sketch10.setExpression("Constraints[8]", "Params.sketch10_width")
sketch10.setExpression("Constraints[9]", "Params.sketch10_height")
pocket2 = body.newObject("PartDesign::Pocket", "Pocket001")
pocket2.Profile = sketch10
pocket2.setExpression("Length", "Params.pocket2_length")

# Sketch on YZ plane
sketch11 = body.newObject("Sketcher::SketchObject", "Sketch010")
sketch11.AttachmentSupport = (doc.getObject("YZ_Plane"), [""])
sketch11.MapMode = "FlatFace"
sketch11.AttachmentOffset = App.Placement(App.Vector(0, 0, 20), App.Rotation())
sketch11.addGeometry(Part.Circle(App.Vector(9, 11, 0), App.Vector(0, 0, 1), 6), False)
sketch11.addConstraint(Sketcher.Constraint("Diameter", 0, Q("12.3 mm")))
sketch11.addConstraint(Sketcher.Constraint("DistanceX", -1, 1, 0, 3, Q("9 mm")))
sketch11.addConstraint(Sketcher.Constraint("DistanceY", -1, 1, 0, 3, Q("11 mm")))
sketch11.setExpression("Constraints[0]", "Params.sketch11_diameter")
pocket3 = body.newObject("PartDesign::Pocket", "Pocket002")
pocket3.Profile = sketch11
pocket3.setExpression("Length", "Params.pocket3_length")
pocket3.Midplane = True

# Sketch on YZ plane
sketch12 = body.newObject("Sketcher::SketchObject", "Sketch011")
sketch12.AttachmentSupport = (doc.getObject("YZ_Plane"), [""])
sketch12.MapMode = "FlatFace"
sketch12.AttachmentOffset = App.Placement(App.Vector(0, 0, 2), App.Rotation())
sketch12.addGeometry(Part.LineSegment(App.Vector(16, 3, 0), App.Vector(1, 3, 0)), False)
sketch12.addGeometry(Part.LineSegment(App.Vector(1, 3, 0), App.Vector(1, 10.5, 0)), False)
sketch12.addGeometry(Part.LineSegment(App.Vector(1, 10.5, 0), App.Vector(2.9, 10.5, 0)), False)
sketch12.addGeometry(Part.ArcOfCircle(Part.Circle(App.Vector(9, 11, 0), App.Vector(0, 0, 1), 6.1), math.radians(-175), math.radians(-5)), False)
sketch12.addGeometry(Part.LineSegment(App.Vector(15.1, 10.5, 0), App.Vector(16, 10.5, 0)), False)
sketch12.addGeometry(Part.LineSegment(App.Vector(16, 10.5, 0), App.Vector(16, 3, 0)), False)
sketch12.addConstraint(Sketcher.Constraint("Coincident", 0, 2, 1, 1))
sketch12.addConstraint(Sketcher.Constraint("Coincident", 1, 2, 2, 1))
sketch12.addConstraint(Sketcher.Constraint("Coincident", 2, 2, 3, 1))
sketch12.addConstraint(Sketcher.Constraint("Coincident", 3, 2, 4, 1))
sketch12.addConstraint(Sketcher.Constraint("Coincident", 4, 2, 5, 1))
sketch12.addConstraint(Sketcher.Constraint("Coincident", 5, 2, 0, 1))
sketch12.addConstraint(Sketcher.Constraint("Horizontal", 0))
sketch12.addConstraint(Sketcher.Constraint("Vertical", 1))
sketch12.addConstraint(Sketcher.Constraint("Horizontal", 2))
sketch12.addConstraint(Sketcher.Constraint("Horizontal", 4))
sketch12.addConstraint(Sketcher.Constraint("Vertical", 5))
sketch12.addConstraint(Sketcher.Constraint("Horizontal", 2, 2, 3, 2))
sketch12.addConstraint(Sketcher.Constraint("DistanceX", 0, 2, 0, 1, Q("15 mm")))
sketch12.addConstraint(Sketcher.Constraint("Radius", 3, Q("6.15 mm")))
sketch12.addConstraint(Sketcher.Constraint("DistanceY", 1, 1, 1, 2, Q("7.5 mm")))
sketch12.addConstraint(Sketcher.Constraint("DistanceX", -1, 1, 3, 3, Q("9 mm")))
sketch12.addConstraint(Sketcher.Constraint("DistanceY", -1, 1, 3, 3, Q("11 mm")))
sketch12.addConstraint(Sketcher.Constraint("DistanceX", -1, 1, 0, 2, Q("1 mm")))
sketch12.addConstraint(Sketcher.Constraint("DistanceY", -1, 1, 0, 2, Q("3 mm")))
sketch12.setExpression("Constraints[12]", "Params.sketch12_width")
sketch12.setExpression("Constraints[13]", "Params.sketch12_radius")
sketch12.setExpression("Constraints[14]", "Params.sketch12_height")
pad9 = body.newObject("PartDesign::Pad", "Pad008")
pad9.Profile = sketch12
pad9.setExpression("Length", "Params.pad9_length")
pad9.Reversed = True

# Sketch on YZ plane
sketch13 = body.newObject("Sketcher::SketchObject", "Sketch012")
sketch13.AttachmentSupport = (doc.getObject("YZ_Plane"), [""])
sketch13.MapMode = "FlatFace"
sketch13.AttachmentOffset = App.Placement(App.Vector(0, 0, 38), App.Rotation())
sketch13.addGeometry(Part.LineSegment(App.Vector(1, 3, 0), App.Vector(16, 3, 0)), False)
sketch13.addGeometry(Part.LineSegment(App.Vector(16, 3, 0), App.Vector(16, 10.5, 0)), False)
sketch13.addGeometry(Part.LineSegment(App.Vector(16, 10.5, 0), App.Vector(15.1, 10.5, 0)), False)
sketch13.addGeometry(Part.ArcOfCircle(Part.Circle(App.Vector(9, 11, 0), App.Vector(0, 0, 1), 6.1), math.radians(-175), math.radians(-5)), False)
sketch13.addGeometry(Part.LineSegment(App.Vector(2.9, 10.5, 0), App.Vector(1, 10.5, 0)), False)
sketch13.addGeometry(Part.LineSegment(App.Vector(1, 10.5, 0), App.Vector(1, 3, 0)), False)
sketch13.addConstraint(Sketcher.Constraint("Coincident", 0, 2, 1, 1))
sketch13.addConstraint(Sketcher.Constraint("Coincident", 1, 2, 2, 1))
sketch13.addConstraint(Sketcher.Constraint("Coincident", 2, 2, 3, 2))
sketch13.addConstraint(Sketcher.Constraint("Coincident", 3, 1, 4, 1))
sketch13.addConstraint(Sketcher.Constraint("Coincident", 4, 2, 5, 1))
sketch13.addConstraint(Sketcher.Constraint("Coincident", 5, 2, 0, 1))
sketch13.addConstraint(Sketcher.Constraint("Horizontal", 0))
sketch13.addConstraint(Sketcher.Constraint("Vertical", 1))
sketch13.addConstraint(Sketcher.Constraint("Horizontal", 2))
sketch13.addConstraint(Sketcher.Constraint("Horizontal", 4))
sketch13.addConstraint(Sketcher.Constraint("Vertical", 5))
sketch13.addConstraint(Sketcher.Constraint("Horizontal", 2, 2, 3, 1))
sketch13.addConstraint(Sketcher.Constraint("DistanceX", 0, 1, 0, 2, Q("15 mm")))
sketch13.addConstraint(Sketcher.Constraint("Radius", 3, Q("6.15 mm")))
sketch13.addConstraint(Sketcher.Constraint("DistanceY", 1, 1, 1, 2, Q("7.5 mm")))
sketch13.addConstraint(Sketcher.Constraint("DistanceX", -1, 1, 3, 3, Q("9 mm")))
sketch13.addConstraint(Sketcher.Constraint("DistanceY", -1, 1, 3, 3, Q("11 mm")))
sketch13.addConstraint(Sketcher.Constraint("DistanceX", -1, 1, 0, 2, Q("16 mm")))
sketch13.addConstraint(Sketcher.Constraint("DistanceY", -1, 1, 0, 2, Q("3 mm")))
sketch13.setExpression("Constraints[12]", "Params.sketch13_width")
sketch13.setExpression("Constraints[13]", "Params.sketch13_radius")
sketch13.setExpression("Constraints[14]", "Params.sketch13_height")
pad10 = body.newObject("PartDesign::Pad", "Pad009")
pad10.Profile = sketch13
pad10.setExpression("Length", "Params.pad10_length")

# Sketch on XY plane
sketch14 = body.newObject("Sketcher::SketchObject", "Sketch013")
sketch14.AttachmentSupport = (doc.getObject("XY_Plane"), [""])
sketch14.MapMode = "FlatFace"
sketch14.AttachmentOffset = App.Placement(App.Vector(0, 0, 10.5), App.Rotation())
add_polygon(sketch14, [(5, 16), (5, 11), (17, 11), (17, 16)])  # lines 0-3
sketch14.addConstraint(Sketcher.Constraint("Vertical", 0))
sketch14.addConstraint(Sketcher.Constraint("Horizontal", 1))
sketch14.addConstraint(Sketcher.Constraint("Vertical", 2))
sketch14.addConstraint(Sketcher.Constraint("Horizontal", 3))
sketch14.addConstraint(Sketcher.Constraint("DistanceX", 1, 1, 1, 2, Q("12 mm")))
sketch14.addConstraint(Sketcher.Constraint("DistanceY", 0, 2, 0, 1, Q("5 mm")))
sketch14.addConstraint(Sketcher.Constraint("DistanceX", -1, 1, 0, 2, Q("5 mm")))
sketch14.addConstraint(Sketcher.Constraint("DistanceY", -1, 1, 0, 2, Q("11 mm")))
sketch14.setExpression("Constraints[8]", "Params.sketch14_width")
sketch14.setExpression("Constraints[9]", "Params.sketch14_height")
pocket4 = body.newObject("PartDesign::Pocket", "Pocket003")
pocket4.Profile = sketch14
pocket4.setExpression("Length", "Params.pocket4_length")
doc.recompute()

fillet = body.newObject("PartDesign::Fillet", "Fillet")
fillet.Base = (pocket4, edges_at(pocket4, [(11, 16, 5.5)]))
fillet.setExpression("Radius", "Params.fillet_radius")

# Sketch on YZ plane
sketch15 = body.newObject("Sketcher::SketchObject", "Sketch014")
sketch15.AttachmentSupport = (doc.getObject("YZ_Plane"), [""])
sketch15.MapMode = "FlatFace"
sketch15.addGeometry(Part.ArcOfCircle(Part.Circle(App.Vector(21.8, 15.7, 0), App.Vector(0, 0, 1), 0.8), math.radians(180), math.radians(360)), False)
sketch15.addGeometry(Part.LineSegment(App.Vector(21.1, 15.7, 0), App.Vector(21.1, 20.7, 0)), False)
sketch15.addGeometry(Part.ArcOfCircle(Part.Circle(App.Vector(21.8, 20.7, 0), App.Vector(0, 0, 1), 0.8), math.radians(0), math.radians(180)), False)
sketch15.addGeometry(Part.LineSegment(App.Vector(22.6, 20.7, 0), App.Vector(22.6, 15.7, 0)), False)
sketch15.addConstraint(Sketcher.Constraint("Tangent", 0, 1, 1, 1))
sketch15.addConstraint(Sketcher.Constraint("Tangent", 1, 2, 2, 2))
sketch15.addConstraint(Sketcher.Constraint("Tangent", 2, 1, 3, 1))
sketch15.addConstraint(Sketcher.Constraint("Tangent", 3, 2, 0, 2))
sketch15.addConstraint(Sketcher.Constraint("Vertical", 1))
sketch15.addConstraint(Sketcher.Constraint("Vertical", 3))
sketch15.addConstraint(Sketcher.Constraint("DistanceY", 1, 1, 1, 2, Q("5 mm")))
sketch15.addConstraint(Sketcher.Constraint("Radius", 0, Q("0.75 mm")))
sketch15.addConstraint(Sketcher.Constraint("DistanceX", -1, 1, 0, 3, Q("21.827213 mm")))
sketch15.addConstraint(Sketcher.Constraint("DistanceY", -1, 1, 0, 3, Q("15.673276 mm")))
sketch15.setExpression("Constraints[6]", "Params.sketch15_height")
sketch15.setExpression("Constraints[7]", "Params.sketch15_radius")
pocket5 = body.newObject("PartDesign::Pocket", "Pocket004")
pocket5.Profile = sketch15
pocket5.setExpression("Length", "Params.pocket5_length")
pocket5.Reversed = True

# Sketch on XZ plane
sketch16 = body.newObject("Sketcher::SketchObject", "Sketch015")
sketch16.AttachmentSupport = (doc.getObject("XZ_Plane"), [""])
sketch16.MapMode = "FlatFace"
sketch16.AttachmentOffset = App.Placement(App.Vector(0, 0, -40), App.Rotation())
sketch16.addGeometry(Part.LineSegment(App.Vector(6.1, 4, 0), App.Vector(6.1, 6, 0)), False)
sketch16.addGeometry(Part.ArcOfCircle(Part.Circle(App.Vector(7.1, 6, 0), App.Vector(0, 0, 1), 1), math.radians(90), math.radians(180)), False)
sketch16.addGeometry(Part.LineSegment(App.Vector(7.1, 7, 0), App.Vector(15.1, 7, 0)), False)
sketch16.addGeometry(Part.ArcOfCircle(Part.Circle(App.Vector(15.1, 6, 0), App.Vector(0, 0, 1), 1), math.radians(0), math.radians(90)), False)
sketch16.addGeometry(Part.LineSegment(App.Vector(16.1, 6, 0), App.Vector(16.1, 4, 0)), False)
sketch16.addGeometry(Part.ArcOfCircle(Part.Circle(App.Vector(15.1, 4, 0), App.Vector(0, 0, 1), 1), math.radians(-90), math.radians(0)), False)
sketch16.addGeometry(Part.LineSegment(App.Vector(15.1, 3, 0), App.Vector(7.1, 3, 0)), False)
sketch16.addGeometry(Part.ArcOfCircle(Part.Circle(App.Vector(7.1, 4, 0), App.Vector(0, 0, 1), 1), math.radians(180), math.radians(270)), False)
sketch16.addConstraint(Sketcher.Constraint("Tangent", 0, 2, 1, 2))
sketch16.addConstraint(Sketcher.Constraint("Tangent", 1, 1, 2, 1))
sketch16.addConstraint(Sketcher.Constraint("Tangent", 2, 2, 3, 2))
sketch16.addConstraint(Sketcher.Constraint("Tangent", 3, 1, 4, 1))
sketch16.addConstraint(Sketcher.Constraint("Tangent", 4, 2, 5, 2))
sketch16.addConstraint(Sketcher.Constraint("Tangent", 5, 1, 6, 1))
sketch16.addConstraint(Sketcher.Constraint("Tangent", 6, 2, 7, 2))
sketch16.addConstraint(Sketcher.Constraint("Tangent", 7, 1, 0, 1))
sketch16.addConstraint(Sketcher.Constraint("Vertical", 0))
sketch16.addConstraint(Sketcher.Constraint("Horizontal", 2))
sketch16.addConstraint(Sketcher.Constraint("Vertical", 4))
sketch16.addConstraint(Sketcher.Constraint("Horizontal", 6))
sketch16.addConstraint(Sketcher.Constraint("Equal", 1, 3))
sketch16.addConstraint(Sketcher.Constraint("Equal", 3, 5))
sketch16.addConstraint(Sketcher.Constraint("Equal", 5, 7))
sketch16.addConstraint(Sketcher.Constraint("Radius", 1, Q("0.999999 mm")))
sketch16.addConstraint(Sketcher.Constraint("DistanceX", 2, 1, 2, 2, Q("8 mm")))
sketch16.addConstraint(Sketcher.Constraint("DistanceY", 0, 1, 0, 2, Q("2 mm")))
sketch16.addConstraint(Sketcher.Constraint("DistanceY", -1, 1, 1, 3, Q("6.000001 mm")))
sketch16.addConstraint(Sketcher.Constraint("DistanceX", -1, 1, 1, 3, Q("7.099999 mm")))
sketch16.setExpression("Constraints[15]", "Params.sketch16_radius")
sketch16.setExpression("Constraints[16]", "Params.sketch16_width")
sketch16.setExpression("Constraints[17]", "Params.sketch16_height")
pocket6 = body.newObject("PartDesign::Pocket", "Pocket005")
pocket6.Profile = sketch16
pocket6.setExpression("Length", "Params.pocket6_length")
pocket6.Reversed = True

doc.recompute()
